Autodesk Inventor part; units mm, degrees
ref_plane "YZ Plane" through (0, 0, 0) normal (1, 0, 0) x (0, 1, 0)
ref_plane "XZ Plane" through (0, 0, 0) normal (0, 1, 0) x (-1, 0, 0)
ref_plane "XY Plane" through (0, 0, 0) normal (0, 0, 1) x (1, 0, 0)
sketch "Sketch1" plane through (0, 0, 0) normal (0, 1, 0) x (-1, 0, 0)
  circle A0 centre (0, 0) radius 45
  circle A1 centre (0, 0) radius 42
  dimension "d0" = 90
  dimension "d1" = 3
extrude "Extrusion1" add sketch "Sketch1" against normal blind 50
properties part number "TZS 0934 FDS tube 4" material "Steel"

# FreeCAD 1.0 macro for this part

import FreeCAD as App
import Part
import Sketcher
Q = App.Units.Quantity

doc = App.newDocument("Part")
body = doc.addObject("PartDesign::Body", "Body")

# Sketch on XZ plane
sketch1 = body.newObject("Sketcher::SketchObject", "Sketch")
sketch1.AttachmentSupport = (doc.getObject("XZ_Plane"), [""])
sketch1.MapMode = "FlatFace"
sketch1.addGeometry(Part.Circle(App.Vector(0, 0, 0), App.Vector(0, 0, 1), 45), False)
sketch1.addGeometry(Part.Circle(App.Vector(0, 0, 0), App.Vector(0, 0, 1), 42), False)
sketch1.addConstraint(Sketcher.Constraint("Coincident", 0, 3, -1, 1))
sketch1.addConstraint(Sketcher.Constraint("Coincident", 1, 3, -1, 1))
sketch1.addConstraint(Sketcher.Constraint("Diameter", 0, Q("90 mm")))
sketch1.addConstraint(Sketcher.Constraint("Diameter", 1, Q("84 mm")))
pad1 = body.newObject("PartDesign::Pad", "Pad")
pad1.Profile = sketch1
pad1.Length = 50

doc.recompute()
